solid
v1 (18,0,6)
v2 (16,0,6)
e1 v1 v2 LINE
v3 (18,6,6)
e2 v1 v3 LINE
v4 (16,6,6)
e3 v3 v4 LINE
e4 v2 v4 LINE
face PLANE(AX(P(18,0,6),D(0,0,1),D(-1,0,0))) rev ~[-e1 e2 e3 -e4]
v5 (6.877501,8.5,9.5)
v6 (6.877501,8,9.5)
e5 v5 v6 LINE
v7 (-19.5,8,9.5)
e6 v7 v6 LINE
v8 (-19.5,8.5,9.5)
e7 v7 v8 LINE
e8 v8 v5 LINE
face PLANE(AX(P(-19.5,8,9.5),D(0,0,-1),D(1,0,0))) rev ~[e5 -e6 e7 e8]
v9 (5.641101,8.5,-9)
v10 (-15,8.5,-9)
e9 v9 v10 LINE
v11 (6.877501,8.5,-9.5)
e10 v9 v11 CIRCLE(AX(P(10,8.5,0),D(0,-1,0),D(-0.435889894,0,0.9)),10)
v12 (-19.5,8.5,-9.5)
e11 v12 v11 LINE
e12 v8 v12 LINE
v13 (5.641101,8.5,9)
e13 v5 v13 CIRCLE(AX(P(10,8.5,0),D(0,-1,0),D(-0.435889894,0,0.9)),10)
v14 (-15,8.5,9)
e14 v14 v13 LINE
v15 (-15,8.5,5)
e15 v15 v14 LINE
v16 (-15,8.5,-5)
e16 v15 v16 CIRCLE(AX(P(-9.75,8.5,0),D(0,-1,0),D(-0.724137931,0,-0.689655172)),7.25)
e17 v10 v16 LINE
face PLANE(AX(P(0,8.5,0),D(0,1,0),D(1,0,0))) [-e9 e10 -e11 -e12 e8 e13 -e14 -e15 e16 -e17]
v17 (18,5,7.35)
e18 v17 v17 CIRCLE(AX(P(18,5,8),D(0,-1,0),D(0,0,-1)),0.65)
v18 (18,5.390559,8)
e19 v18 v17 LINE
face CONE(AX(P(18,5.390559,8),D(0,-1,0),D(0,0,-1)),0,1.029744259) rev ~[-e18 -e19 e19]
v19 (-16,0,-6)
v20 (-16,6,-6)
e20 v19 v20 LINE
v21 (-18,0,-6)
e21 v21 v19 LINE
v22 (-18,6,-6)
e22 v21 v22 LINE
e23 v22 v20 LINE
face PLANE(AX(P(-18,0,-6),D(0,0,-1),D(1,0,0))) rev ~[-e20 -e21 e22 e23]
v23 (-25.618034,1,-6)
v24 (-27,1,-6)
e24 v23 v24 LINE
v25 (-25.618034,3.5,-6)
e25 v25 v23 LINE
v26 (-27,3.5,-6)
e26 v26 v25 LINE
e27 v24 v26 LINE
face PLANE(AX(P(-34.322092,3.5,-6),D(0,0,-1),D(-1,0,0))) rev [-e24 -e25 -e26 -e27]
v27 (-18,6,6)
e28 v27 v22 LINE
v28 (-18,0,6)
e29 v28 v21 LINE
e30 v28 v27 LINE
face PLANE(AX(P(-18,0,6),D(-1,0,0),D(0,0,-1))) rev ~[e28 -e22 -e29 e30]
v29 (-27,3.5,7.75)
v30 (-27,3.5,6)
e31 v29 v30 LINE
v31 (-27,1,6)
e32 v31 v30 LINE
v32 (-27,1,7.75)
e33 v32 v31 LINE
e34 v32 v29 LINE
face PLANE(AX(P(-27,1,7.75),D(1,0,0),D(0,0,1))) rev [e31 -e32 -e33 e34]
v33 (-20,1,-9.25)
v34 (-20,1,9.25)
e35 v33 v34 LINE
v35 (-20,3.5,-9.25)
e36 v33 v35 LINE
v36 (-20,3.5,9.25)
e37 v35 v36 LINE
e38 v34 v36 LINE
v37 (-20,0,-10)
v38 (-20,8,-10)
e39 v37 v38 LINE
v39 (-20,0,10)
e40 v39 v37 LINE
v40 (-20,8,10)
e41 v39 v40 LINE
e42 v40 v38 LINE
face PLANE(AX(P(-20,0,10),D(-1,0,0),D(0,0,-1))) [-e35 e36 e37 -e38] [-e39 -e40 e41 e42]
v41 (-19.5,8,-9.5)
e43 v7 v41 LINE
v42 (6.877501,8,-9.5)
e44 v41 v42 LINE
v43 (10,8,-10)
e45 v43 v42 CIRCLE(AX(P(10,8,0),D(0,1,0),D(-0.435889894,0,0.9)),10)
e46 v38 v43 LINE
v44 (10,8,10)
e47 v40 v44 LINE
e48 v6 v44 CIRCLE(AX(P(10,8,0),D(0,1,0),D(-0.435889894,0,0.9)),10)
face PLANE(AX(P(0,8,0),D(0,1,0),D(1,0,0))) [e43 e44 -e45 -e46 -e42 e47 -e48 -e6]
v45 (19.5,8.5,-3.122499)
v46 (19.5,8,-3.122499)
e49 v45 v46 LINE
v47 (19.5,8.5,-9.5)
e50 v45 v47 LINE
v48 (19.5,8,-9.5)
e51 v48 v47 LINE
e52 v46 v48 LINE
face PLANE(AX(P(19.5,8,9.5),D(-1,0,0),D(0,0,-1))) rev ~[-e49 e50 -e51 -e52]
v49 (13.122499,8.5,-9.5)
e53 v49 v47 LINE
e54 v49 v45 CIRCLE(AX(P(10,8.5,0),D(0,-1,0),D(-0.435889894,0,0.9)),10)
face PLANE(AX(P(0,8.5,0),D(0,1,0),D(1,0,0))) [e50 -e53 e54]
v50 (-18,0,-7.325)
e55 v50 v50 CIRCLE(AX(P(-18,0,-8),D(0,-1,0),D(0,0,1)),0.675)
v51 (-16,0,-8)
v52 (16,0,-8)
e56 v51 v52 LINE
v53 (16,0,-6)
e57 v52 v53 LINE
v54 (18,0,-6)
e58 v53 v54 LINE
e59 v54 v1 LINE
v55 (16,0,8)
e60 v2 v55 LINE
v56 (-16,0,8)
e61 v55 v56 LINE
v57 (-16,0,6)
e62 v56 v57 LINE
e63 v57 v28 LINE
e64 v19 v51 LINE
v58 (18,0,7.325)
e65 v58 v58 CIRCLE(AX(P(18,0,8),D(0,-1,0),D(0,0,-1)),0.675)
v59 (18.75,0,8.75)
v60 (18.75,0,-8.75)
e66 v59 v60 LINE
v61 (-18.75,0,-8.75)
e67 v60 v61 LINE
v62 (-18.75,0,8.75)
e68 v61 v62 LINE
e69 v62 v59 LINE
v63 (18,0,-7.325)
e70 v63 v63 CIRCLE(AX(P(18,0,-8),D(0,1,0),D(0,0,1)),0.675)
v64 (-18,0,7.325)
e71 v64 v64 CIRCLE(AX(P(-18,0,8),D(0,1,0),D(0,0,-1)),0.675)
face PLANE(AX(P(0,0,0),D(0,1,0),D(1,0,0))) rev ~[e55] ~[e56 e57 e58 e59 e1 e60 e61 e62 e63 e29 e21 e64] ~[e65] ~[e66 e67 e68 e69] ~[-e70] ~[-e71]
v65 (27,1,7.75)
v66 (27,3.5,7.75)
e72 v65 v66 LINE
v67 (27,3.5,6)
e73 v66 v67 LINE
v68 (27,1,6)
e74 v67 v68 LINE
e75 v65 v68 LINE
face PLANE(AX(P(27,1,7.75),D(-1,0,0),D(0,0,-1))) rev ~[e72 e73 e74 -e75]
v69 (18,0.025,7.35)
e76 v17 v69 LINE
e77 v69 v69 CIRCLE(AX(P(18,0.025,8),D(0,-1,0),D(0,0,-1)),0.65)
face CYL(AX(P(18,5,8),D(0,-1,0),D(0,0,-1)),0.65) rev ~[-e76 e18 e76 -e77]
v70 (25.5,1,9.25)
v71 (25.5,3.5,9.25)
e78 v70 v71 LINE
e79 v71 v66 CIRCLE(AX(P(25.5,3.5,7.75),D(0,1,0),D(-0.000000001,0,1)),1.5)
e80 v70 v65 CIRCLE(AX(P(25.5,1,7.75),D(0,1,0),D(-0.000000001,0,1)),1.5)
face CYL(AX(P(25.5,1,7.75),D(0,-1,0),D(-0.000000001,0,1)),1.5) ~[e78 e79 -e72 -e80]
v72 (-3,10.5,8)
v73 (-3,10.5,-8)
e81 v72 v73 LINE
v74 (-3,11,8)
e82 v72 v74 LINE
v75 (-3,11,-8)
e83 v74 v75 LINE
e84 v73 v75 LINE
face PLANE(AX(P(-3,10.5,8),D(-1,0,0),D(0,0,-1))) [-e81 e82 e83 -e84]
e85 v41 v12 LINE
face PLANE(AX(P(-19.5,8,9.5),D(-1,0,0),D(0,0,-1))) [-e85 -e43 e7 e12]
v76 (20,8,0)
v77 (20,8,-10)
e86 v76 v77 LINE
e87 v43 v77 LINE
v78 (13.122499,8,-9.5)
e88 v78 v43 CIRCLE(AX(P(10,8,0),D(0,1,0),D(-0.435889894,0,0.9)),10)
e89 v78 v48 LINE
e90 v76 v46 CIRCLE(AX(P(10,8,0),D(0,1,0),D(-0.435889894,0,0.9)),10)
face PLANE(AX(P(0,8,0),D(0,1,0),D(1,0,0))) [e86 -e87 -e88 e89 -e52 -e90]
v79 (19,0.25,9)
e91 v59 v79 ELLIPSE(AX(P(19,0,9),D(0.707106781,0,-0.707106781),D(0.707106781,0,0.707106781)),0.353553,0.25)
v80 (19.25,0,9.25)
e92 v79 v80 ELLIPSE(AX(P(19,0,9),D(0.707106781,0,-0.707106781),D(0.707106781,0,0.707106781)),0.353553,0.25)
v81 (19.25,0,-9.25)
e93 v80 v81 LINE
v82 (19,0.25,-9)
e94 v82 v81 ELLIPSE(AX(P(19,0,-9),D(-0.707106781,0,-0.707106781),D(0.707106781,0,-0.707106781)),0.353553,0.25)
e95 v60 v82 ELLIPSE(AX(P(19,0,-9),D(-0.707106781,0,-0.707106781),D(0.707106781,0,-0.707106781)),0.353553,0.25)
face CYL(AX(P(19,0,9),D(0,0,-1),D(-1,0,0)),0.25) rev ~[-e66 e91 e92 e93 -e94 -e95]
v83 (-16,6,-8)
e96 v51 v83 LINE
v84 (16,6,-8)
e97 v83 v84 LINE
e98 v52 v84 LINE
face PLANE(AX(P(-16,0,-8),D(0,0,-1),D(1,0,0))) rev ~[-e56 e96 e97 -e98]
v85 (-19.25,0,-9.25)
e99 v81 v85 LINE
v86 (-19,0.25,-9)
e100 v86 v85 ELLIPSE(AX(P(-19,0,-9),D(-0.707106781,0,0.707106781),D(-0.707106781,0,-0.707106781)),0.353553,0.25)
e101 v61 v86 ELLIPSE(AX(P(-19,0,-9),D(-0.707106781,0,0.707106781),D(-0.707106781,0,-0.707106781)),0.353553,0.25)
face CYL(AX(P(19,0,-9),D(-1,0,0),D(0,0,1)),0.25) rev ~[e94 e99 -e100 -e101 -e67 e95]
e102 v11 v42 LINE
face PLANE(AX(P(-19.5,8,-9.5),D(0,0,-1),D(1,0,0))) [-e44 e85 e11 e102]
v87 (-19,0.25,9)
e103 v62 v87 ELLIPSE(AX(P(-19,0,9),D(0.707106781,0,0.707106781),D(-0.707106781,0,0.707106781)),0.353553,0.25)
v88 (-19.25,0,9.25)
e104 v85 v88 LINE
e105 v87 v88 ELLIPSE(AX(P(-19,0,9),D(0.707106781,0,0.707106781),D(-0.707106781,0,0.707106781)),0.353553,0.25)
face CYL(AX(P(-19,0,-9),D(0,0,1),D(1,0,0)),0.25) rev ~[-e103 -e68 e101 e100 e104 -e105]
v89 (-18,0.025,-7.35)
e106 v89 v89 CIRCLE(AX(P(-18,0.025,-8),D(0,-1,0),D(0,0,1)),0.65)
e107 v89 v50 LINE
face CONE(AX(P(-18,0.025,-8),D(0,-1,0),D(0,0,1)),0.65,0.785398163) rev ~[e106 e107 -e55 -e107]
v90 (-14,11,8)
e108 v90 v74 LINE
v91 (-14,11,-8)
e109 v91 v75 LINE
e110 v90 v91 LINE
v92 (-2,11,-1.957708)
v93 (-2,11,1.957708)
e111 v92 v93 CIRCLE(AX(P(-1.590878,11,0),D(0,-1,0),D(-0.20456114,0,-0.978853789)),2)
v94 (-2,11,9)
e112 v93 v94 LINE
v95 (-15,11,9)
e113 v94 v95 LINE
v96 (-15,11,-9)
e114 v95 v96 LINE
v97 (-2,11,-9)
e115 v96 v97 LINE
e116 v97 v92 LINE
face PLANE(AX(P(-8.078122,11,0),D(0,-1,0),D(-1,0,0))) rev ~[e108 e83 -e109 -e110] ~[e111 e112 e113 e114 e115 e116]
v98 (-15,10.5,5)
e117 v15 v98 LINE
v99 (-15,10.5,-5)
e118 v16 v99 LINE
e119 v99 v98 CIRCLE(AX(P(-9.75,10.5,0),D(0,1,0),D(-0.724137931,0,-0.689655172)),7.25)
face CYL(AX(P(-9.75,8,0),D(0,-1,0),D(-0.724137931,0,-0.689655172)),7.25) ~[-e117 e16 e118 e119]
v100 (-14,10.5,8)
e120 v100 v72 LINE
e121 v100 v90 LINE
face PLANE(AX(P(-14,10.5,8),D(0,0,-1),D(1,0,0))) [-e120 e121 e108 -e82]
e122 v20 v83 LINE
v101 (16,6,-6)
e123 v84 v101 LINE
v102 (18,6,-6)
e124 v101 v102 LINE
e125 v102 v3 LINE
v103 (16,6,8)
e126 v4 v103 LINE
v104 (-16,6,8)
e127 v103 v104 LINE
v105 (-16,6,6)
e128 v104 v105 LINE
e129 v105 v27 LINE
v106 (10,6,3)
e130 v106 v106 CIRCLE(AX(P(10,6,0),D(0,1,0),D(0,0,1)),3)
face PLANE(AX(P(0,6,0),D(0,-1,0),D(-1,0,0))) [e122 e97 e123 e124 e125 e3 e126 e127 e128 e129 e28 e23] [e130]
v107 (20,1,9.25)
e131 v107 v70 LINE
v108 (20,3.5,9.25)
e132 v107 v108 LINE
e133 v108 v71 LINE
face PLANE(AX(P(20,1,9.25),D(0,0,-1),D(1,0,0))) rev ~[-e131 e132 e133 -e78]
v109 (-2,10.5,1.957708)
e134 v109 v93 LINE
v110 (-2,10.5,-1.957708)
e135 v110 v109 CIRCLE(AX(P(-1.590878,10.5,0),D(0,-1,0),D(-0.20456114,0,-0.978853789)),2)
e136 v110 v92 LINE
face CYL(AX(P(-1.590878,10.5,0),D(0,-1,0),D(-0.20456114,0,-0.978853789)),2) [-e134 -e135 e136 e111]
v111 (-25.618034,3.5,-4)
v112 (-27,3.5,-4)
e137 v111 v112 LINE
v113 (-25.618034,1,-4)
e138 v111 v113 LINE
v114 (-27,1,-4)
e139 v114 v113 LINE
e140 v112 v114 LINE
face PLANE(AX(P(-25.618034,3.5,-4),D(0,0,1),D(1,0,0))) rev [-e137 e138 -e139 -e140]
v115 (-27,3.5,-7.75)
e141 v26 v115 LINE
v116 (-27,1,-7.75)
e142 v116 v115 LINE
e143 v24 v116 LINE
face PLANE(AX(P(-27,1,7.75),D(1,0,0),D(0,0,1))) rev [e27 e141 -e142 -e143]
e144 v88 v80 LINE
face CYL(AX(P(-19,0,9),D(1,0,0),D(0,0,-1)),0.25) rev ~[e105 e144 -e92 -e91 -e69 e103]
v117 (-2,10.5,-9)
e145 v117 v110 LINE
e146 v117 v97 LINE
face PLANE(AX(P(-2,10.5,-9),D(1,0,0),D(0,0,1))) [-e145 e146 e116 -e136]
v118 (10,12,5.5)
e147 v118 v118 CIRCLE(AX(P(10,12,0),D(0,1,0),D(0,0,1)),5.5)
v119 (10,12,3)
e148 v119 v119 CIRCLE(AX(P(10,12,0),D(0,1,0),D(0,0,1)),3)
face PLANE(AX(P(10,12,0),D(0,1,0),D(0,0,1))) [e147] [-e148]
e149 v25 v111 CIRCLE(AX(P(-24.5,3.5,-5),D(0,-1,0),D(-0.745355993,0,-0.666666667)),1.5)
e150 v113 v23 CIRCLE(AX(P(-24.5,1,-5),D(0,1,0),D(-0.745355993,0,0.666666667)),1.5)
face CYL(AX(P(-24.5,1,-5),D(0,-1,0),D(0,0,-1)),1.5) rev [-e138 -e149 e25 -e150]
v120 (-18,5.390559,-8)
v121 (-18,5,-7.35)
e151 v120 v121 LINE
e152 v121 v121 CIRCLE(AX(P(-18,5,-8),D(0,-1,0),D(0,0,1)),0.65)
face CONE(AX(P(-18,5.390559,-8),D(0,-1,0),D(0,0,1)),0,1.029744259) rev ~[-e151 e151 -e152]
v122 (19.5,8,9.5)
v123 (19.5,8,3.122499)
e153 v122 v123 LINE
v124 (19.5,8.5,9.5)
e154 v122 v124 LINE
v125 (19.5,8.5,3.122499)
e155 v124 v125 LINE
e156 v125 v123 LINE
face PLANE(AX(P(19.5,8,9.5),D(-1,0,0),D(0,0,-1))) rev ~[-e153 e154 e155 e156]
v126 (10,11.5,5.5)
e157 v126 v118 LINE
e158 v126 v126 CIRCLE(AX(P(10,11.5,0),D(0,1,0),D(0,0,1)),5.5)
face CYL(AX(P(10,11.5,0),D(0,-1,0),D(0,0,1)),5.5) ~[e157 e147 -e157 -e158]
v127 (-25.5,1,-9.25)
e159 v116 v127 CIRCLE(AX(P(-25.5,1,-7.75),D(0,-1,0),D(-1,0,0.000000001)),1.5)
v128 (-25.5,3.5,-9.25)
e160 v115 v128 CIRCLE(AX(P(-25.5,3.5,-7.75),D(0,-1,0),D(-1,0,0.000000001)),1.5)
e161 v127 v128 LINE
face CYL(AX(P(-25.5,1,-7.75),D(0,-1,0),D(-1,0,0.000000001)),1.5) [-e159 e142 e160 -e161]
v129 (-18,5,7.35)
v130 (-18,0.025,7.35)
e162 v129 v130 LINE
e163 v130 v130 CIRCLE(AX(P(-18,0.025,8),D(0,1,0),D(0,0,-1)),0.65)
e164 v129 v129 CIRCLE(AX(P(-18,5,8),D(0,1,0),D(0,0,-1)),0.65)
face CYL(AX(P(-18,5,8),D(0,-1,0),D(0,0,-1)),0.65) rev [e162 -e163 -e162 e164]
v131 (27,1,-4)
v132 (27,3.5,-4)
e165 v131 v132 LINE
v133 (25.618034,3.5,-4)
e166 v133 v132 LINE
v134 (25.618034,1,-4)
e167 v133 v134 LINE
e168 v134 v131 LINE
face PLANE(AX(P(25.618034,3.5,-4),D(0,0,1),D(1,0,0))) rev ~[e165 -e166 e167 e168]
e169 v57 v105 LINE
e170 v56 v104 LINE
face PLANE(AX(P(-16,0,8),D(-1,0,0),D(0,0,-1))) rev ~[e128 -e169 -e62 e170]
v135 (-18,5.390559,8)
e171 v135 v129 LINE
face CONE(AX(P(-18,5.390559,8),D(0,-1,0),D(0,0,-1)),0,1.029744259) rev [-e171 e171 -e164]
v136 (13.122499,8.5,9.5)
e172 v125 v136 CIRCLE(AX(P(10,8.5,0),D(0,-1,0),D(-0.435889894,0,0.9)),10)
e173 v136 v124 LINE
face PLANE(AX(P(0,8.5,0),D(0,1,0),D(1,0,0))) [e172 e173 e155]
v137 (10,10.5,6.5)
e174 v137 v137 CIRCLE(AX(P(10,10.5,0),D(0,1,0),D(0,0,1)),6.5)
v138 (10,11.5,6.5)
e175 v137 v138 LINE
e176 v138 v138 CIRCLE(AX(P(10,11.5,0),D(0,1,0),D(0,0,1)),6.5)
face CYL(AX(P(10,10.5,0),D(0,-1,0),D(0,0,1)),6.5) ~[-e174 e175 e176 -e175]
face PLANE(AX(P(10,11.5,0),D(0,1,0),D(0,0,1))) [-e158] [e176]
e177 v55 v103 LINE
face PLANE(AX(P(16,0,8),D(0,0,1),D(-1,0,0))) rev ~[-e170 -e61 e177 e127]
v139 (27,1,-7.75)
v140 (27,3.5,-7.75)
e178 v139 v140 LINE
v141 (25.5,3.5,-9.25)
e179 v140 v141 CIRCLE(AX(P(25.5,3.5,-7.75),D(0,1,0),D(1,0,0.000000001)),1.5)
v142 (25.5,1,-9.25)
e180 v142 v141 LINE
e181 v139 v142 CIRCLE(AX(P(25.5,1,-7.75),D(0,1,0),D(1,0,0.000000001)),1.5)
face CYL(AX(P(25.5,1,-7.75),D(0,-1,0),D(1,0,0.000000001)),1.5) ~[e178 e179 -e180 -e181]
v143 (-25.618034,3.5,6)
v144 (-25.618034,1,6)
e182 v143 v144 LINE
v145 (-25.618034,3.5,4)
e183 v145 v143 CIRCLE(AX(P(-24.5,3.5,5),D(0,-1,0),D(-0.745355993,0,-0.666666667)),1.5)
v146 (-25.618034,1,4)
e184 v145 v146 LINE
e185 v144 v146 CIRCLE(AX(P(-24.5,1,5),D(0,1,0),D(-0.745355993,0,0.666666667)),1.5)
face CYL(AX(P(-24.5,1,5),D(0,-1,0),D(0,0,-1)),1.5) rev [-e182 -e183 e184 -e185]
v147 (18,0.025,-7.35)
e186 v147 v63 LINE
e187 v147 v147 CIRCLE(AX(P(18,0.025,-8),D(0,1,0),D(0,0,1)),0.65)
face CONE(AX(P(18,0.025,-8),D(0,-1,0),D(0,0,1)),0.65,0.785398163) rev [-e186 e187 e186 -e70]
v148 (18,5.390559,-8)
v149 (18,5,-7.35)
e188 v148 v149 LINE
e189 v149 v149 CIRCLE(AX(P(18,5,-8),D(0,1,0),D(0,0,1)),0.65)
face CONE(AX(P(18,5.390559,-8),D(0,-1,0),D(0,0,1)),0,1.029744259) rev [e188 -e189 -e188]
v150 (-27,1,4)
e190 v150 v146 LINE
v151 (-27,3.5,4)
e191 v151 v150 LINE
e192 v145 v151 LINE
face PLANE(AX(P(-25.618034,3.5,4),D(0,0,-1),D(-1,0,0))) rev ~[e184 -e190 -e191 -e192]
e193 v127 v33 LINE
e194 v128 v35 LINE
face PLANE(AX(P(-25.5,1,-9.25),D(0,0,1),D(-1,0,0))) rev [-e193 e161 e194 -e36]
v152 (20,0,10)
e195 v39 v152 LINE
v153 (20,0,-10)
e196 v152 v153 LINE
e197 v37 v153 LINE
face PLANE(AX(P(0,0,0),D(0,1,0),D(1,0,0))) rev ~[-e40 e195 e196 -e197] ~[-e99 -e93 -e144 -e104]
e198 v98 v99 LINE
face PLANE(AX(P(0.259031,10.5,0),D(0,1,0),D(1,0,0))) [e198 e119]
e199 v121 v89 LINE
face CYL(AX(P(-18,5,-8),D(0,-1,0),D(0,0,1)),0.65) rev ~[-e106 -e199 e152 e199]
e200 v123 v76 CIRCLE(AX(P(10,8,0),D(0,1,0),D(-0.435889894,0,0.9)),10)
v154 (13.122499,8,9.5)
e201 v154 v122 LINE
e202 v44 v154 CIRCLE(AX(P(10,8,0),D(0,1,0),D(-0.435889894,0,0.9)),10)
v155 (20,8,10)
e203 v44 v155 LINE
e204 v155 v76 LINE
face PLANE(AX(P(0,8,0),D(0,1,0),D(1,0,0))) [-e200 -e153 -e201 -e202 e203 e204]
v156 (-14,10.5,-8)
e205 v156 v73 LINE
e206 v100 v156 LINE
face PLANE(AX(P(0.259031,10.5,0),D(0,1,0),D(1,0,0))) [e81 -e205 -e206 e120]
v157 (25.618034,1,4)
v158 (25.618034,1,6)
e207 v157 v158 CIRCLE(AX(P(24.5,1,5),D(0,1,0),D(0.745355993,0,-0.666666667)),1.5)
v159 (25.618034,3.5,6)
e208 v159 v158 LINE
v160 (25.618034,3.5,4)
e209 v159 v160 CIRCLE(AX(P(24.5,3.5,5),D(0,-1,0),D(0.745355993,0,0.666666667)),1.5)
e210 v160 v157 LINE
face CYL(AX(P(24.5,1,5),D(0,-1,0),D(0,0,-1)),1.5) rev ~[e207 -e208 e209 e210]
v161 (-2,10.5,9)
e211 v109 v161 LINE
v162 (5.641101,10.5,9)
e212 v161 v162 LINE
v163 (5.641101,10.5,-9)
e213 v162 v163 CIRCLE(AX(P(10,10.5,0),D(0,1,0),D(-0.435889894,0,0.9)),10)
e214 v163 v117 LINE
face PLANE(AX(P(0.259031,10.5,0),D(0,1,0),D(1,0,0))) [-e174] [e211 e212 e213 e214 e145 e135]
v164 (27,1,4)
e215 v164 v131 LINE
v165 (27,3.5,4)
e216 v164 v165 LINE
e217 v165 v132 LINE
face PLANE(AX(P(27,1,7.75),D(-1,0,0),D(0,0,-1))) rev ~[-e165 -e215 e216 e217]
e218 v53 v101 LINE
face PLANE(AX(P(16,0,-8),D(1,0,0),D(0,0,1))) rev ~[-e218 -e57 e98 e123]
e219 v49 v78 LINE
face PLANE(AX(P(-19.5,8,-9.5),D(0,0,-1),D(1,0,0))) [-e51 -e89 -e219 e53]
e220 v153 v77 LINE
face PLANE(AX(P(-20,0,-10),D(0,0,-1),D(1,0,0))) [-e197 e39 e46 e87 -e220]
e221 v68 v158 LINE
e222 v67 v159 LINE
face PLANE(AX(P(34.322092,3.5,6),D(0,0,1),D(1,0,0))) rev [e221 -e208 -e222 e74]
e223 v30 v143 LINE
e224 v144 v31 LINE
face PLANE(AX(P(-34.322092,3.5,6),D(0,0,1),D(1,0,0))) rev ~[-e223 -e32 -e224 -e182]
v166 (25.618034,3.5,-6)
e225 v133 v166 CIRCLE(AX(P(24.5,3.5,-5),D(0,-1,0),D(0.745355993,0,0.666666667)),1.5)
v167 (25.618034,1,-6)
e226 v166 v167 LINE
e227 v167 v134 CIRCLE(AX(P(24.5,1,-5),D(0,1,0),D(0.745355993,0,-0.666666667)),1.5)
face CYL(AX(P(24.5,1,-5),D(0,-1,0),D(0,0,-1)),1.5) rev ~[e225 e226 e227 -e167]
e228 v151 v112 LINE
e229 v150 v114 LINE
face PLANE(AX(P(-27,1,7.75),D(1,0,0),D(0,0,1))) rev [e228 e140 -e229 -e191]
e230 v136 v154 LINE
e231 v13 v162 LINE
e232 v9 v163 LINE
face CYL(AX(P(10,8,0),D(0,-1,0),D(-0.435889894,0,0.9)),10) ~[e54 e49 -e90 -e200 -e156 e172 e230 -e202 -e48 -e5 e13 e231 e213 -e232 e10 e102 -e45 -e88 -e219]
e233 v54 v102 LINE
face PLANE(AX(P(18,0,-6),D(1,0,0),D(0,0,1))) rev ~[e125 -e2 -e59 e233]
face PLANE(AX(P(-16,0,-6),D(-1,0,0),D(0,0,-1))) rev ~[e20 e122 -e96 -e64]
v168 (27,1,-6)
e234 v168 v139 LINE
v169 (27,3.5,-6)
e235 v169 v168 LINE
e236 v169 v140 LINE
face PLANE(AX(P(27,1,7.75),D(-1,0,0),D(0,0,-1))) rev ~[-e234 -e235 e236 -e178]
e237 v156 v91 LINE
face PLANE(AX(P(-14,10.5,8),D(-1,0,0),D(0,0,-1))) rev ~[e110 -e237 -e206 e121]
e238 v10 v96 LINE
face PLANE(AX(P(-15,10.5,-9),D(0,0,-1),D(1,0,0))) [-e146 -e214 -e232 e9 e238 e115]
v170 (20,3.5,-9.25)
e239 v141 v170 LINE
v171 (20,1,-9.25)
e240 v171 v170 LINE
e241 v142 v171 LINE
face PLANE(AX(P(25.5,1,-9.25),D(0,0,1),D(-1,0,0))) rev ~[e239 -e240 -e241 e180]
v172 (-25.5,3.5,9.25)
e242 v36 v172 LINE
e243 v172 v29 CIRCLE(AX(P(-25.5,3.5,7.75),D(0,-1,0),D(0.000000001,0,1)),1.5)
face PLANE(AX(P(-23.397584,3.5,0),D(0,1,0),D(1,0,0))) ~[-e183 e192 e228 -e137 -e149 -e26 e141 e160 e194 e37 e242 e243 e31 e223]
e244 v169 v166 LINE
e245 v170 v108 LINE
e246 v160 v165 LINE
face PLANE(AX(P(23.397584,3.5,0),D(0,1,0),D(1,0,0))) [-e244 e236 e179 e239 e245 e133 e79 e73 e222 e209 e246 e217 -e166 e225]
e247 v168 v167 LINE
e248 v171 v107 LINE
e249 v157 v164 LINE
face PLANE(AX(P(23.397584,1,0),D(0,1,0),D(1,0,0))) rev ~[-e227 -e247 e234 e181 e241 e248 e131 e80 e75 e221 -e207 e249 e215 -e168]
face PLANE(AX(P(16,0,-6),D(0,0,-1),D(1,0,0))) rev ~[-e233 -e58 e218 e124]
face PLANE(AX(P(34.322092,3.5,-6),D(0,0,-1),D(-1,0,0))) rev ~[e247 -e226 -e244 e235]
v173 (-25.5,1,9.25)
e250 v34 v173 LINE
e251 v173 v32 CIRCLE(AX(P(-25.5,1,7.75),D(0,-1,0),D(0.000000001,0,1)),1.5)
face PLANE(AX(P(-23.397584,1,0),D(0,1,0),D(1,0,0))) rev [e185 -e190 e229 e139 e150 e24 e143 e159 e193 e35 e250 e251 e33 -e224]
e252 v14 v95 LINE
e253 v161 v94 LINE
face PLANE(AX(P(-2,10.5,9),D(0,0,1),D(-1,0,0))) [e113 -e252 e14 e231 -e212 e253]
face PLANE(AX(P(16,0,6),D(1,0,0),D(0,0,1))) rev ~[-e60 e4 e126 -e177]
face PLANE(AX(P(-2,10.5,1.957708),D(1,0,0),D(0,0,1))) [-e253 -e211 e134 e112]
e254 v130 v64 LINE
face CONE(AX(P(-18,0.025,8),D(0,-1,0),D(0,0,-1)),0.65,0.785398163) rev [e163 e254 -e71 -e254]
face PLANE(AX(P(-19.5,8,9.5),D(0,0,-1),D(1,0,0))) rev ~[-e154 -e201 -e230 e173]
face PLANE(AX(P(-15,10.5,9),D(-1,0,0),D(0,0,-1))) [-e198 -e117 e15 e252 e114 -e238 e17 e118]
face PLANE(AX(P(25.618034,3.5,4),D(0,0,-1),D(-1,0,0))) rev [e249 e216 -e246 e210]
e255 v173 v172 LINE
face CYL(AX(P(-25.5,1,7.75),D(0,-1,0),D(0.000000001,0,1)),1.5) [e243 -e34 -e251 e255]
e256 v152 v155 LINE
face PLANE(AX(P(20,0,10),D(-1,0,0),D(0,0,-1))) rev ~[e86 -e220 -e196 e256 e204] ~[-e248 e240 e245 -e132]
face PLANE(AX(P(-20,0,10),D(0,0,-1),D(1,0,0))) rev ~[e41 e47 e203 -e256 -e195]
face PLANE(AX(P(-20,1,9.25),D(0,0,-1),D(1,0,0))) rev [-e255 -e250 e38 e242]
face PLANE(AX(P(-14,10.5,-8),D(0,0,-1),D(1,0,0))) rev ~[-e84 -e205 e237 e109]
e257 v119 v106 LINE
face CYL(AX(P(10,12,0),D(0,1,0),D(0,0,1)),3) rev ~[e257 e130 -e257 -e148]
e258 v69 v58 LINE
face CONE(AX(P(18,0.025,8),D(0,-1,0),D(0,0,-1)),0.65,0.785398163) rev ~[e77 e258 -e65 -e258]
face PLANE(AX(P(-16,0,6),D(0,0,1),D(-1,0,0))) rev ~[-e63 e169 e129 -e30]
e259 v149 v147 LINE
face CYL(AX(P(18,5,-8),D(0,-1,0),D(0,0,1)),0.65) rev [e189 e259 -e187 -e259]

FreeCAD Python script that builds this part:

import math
import FreeCAD as App
import Part
import Sketcher
Q = App.Units.Quantity


def add_polygon(sketch, points):
    """Adds a closed chain of lines whose ends are joined by coincident constraints."""
    first, n = sketch.GeometryCount, len(points)
    for a, b in zip(points, points[1:] + points[:1]):
        sketch.addGeometry(Part.LineSegment(App.Vector(*a, 0), App.Vector(*b, 0)), False)
    for i in range(n):
        sketch.addConstraint(Sketcher.Constraint("Coincident", first + i, 2, first + (i + 1) % n, 1))

doc = App.newDocument("Part")
body = doc.addObject("PartDesign::Body", "Body")

sketch1 = body.newObject("Sketcher::SketchObject", "Sketch")
sketch1.AttachmentSupport = (doc.getObject("XZ_Plane"), [""])
sketch1.MapMode = "FlatFace"
add_polygon(sketch1, [(-20, -10), (-20, 10), (20, 10), (20, -10)])
sketch1.addConstraint([
    Sketcher.Constraint("Vertical", 0),
    Sketcher.Constraint("Horizontal", 1),
    Sketcher.Constraint("Vertical", 2),
    Sketcher.Constraint("Horizontal", 3),
    Sketcher.Constraint("Symmetric", 0, 2, 2, 2, -1, 1),
    Sketcher.Constraint("DistanceX", 1, 1, 1, 2, 40.0),
    Sketcher.Constraint("DistanceY", 0, 1, 0, 2, 20.0),
])
pad1 = body.newObject("PartDesign::Pad", "Pad")
pad1.Profile = sketch1
pad1.Length = 8
pad1.Reversed = True

sketch2 = body.newObject("Sketcher::SketchObject", "Sketch001")
sketch2.AttachmentSupport = (doc.getObject("XZ_Plane"), [""])
sketch2.MapMode = "FlatFace"
add_polygon(sketch2, [(-16, 8), (16, 8), (16, 6), (18, 6), (18, -6), (16, -6), (16, -8), (-16, -8), (-16, -6), (-18, -6), (-18, 6), (-16, 6)])
sketch2.addConstraint([
    Sketcher.Constraint("Horizontal", 0),
    Sketcher.Constraint("Vertical", 1),
    Sketcher.Constraint("Horizontal", 2),
    Sketcher.Constraint("Vertical", 3),
    Sketcher.Constraint("Horizontal", 4),
    Sketcher.Constraint("Vertical", 5),
    Sketcher.Constraint("Horizontal", 6),
    Sketcher.Constraint("Vertical", 7),
    Sketcher.Constraint("Horizontal", 8),
    Sketcher.Constraint("Vertical", 9),
    Sketcher.Constraint("Horizontal", 10),
    Sketcher.Constraint("Vertical", 11),
    Sketcher.Constraint("Symmetric", 0, 2, 6, 2, -1, 1),
    Sketcher.Constraint("Symmetric", 2, 2, 8, 2, -1, 1),
    Sketcher.Constraint("Symmetric", 4, 2, 10, 2, -1, 1),
    Sketcher.Constraint("Symmetric", 4, 2, 7, 2, -2),
    Sketcher.Constraint("Equal", 10, 1),
    Sketcher.Constraint("DistanceX", 0, 1, 0, 2, 32.0),
    Sketcher.Constraint("DistanceX", 2, 1, 2, 2, 2.0),
    Sketcher.Constraint("DistanceY", 3, 2, 3, 1, 12.0),
])
pocket1 = body.newObject("PartDesign::Pocket", "Pocket")
pocket1.Profile = sketch2
pocket1.Length = 6

sketch3 = body.newObject("Sketcher::SketchObject", "Sketch002")
sketch3.AttachmentSupport = (doc.getObject("YZ_Plane"), [""])
sketch3.MapMode = "FlatFace"
sketch3.AttachmentOffset = App.Placement(App.Vector(0, 0, -18), App.Rotation())
add_polygon(sketch3, [(5.391, 8), (0, 8), (0, 7.325), (0.025, 7.35), (5, 7.35)])
sketch3.addGeometry(Part.LineSegment(App.Vector(0, 8, 0), App.Vector(5.391, 8, 0)), True)
sketch3.addConstraint([
    Sketcher.Constraint("Horizontal", 0),
    Sketcher.Constraint("Vertical", 1),
    Sketcher.Constraint("Horizontal", 3),
    Sketcher.Constraint("Horizontal", 5),
    Sketcher.Constraint("Coincident", 5, 1, 0, 2),
    Sketcher.Constraint("PointOnObject", 0, 2, -2),
    Sketcher.Constraint("Equal", 0, 5),
    Sketcher.Constraint("Angle", 2, Q("45 deg")),
    Sketcher.Constraint("Angle", 4, Q("59 deg")),
    Sketcher.Constraint("DistanceY", -1, 1, 0, 2, 8.0),
    Sketcher.Constraint("DistanceX", -1, 1, 3, 2, 5.0),
    Sketcher.Constraint("DistanceX", 3, 1, 3, 2, 4.975),
    Sketcher.Constraint("DistanceY", 1, 2, 1, 1, 0.675),
])
groove = body.newObject("PartDesign::Groove", "Groove")
groove.Profile = sketch3
groove.ReferenceAxis = (sketch3, ["Axis0"])
groove.Angle = 360
doc.recompute()

mirrored = body.newObject("PartDesign::Mirrored", "Mirrored")
mirrored.Originals = [groove]
mirrored.MirrorPlane = (doc.getObject("YZ_Plane"), [""])
body.Tip = mirrored
doc.recompute()

mirrored2 = body.newObject("PartDesign::Mirrored", "Mirrored001")
mirrored2.Originals = [groove]
mirrored2.MirrorPlane = (doc.getObject("XY_Plane"), [""])
body.Tip = mirrored2

sketch4 = body.newObject("Sketcher::SketchObject", "Sketch003")
sketch4.AttachmentSupport = (doc.getObject("YZ_Plane"), [""])
sketch4.MapMode = "FlatFace"
sketch4.AttachmentOffset = App.Placement(App.Vector(0, 0, 18), App.Rotation())
add_polygon(sketch4, [(5.391, -8), (0, -8), (0, -7.325), (0.025, -7.35), (5, -7.35)])
sketch4.addGeometry(Part.LineSegment(App.Vector(0, -8, 0), App.Vector(5.391, -8, 0)), True)
sketch4.addConstraint([
    Sketcher.Constraint("Horizontal", 0),
    Sketcher.Constraint("Vertical", 1),
    Sketcher.Constraint("Horizontal", 3),
    Sketcher.Constraint("Horizontal", 5),
    Sketcher.Constraint("Coincident", 5, 1, 0, 2),
    Sketcher.Constraint("PointOnObject", 0, 2, -2),
    Sketcher.Constraint("Equal", 0, 5),
    Sketcher.Constraint("Angle", 2, Q("-45 deg")),
    Sketcher.Constraint("Angle", 4, Q("-59 deg")),
    Sketcher.Constraint("DistanceY", 0, 2, -1, 1, 8.0),
    Sketcher.Constraint("DistanceX", -1, 1, 3, 2, 5.0),
    Sketcher.Constraint("DistanceX", 3, 1, 3, 2, 4.975),
    Sketcher.Constraint("DistanceY", 1, 1, 1, 2, 0.675),
])
groove2 = body.newObject("PartDesign::Groove", "Groove001")
groove2.Profile = sketch4
groove2.ReferenceAxis = (sketch4, ["Axis0"])
groove2.Angle = 360

sketch5 = body.newObject("Sketcher::SketchObject", "Sketch004")
sketch5.AttachmentSupport = (doc.getObject("XY_Plane"), [""])
sketch5.MapMode = "FlatFace"
sketch5.addGeometry([
    Part.LineSegment(App.Vector(-19.25, 0, 0), App.Vector(-18.75, 0, 0)),
    Part.ArcOfCircle(Part.Circle(App.Vector(-19, 0, 0), App.Vector(0, 0, 1), 0.25), math.radians(0), math.radians(180)),
], False)
sketch5.addConstraint([
    Sketcher.Constraint("Coincident", 0, 1, 1, 2),
    Sketcher.Constraint("Coincident", 1, 1, 0, 2),
    Sketcher.Constraint("Horizontal", 0),
    Sketcher.Constraint("PointOnObject", 1, 3, -1),
    Sketcher.Constraint("PointOnObject", 0, 1, -1),
    Sketcher.Constraint("Radius", 1, 0.25),
    Sketcher.Constraint("DistanceX", 1, 3, -1, 1, 19.0),
])

sketch6 = body.newObject("Sketcher::SketchObject", "Sketch005")
sketch6.AttachmentSupport = (doc.getObject("XZ_Plane"), [""])
sketch6.MapMode = "FlatFace"
add_polygon(sketch6, [(19, -9), (-19, -9), (-19, 9), (19, 9)])
sketch6.addConstraint([
    Sketcher.Constraint("Horizontal", 0),
    Sketcher.Constraint("Vertical", 1),
    Sketcher.Constraint("Horizontal", 2),
    Sketcher.Constraint("Vertical", 3),
    Sketcher.Constraint("Symmetric", 0, 2, 2, 2, -1, 1),
    Sketcher.Constraint("DistanceX", 0, 2, 0, 1, 38.0),
    Sketcher.Constraint("DistanceY", 1, 1, 1, 2, 18.0),
])
doc.recompute()

subtractivepipe = body.newObject("PartDesign::SubtractivePipe", "SubtractivePipe")
subtractivepipe.Profile = sketch5
subtractivepipe.Spine = (sketch6, ["Edge1", "Edge2", "Edge3", "Edge4"])
subtractivepipe.Transition = "Right corner"

sketch7 = body.newObject("Sketcher::SketchObject", "Sketch006")
sketch7.AttachmentSupport = (doc.getObject("XZ_Plane"), [""])
sketch7.MapMode = "FlatFace"
sketch7.AttachmentOffset = App.Placement(App.Vector(0, 0, -8), App.Rotation())
sketch7.addGeometry([
    Part.LineSegment(App.Vector(5.6, -9, 0), App.Vector(-15, -9, 0)),
    Part.LineSegment(App.Vector(-15, -9, 0), App.Vector(-15, -5, 0)),
    Part.ArcOfCircle(Part.Circle(App.Vector(-9.8, 0, 0), App.Vector(0, 0, 1), 7.2), math.radians(136), math.radians(224)),
    Part.LineSegment(App.Vector(-15, 5, 0), App.Vector(-15, 9, 0)),
    Part.LineSegment(App.Vector(-15, 9, 0), App.Vector(5.6, 9, 0)),
    Part.ArcOfCircle(Part.Circle(App.Vector(10, 0, 0), App.Vector(0, 0, 1), 10), math.radians(-116), math.radians(116)),
], False)
sketch7.addConstraint([
    Sketcher.Constraint("Coincident", 0, 2, 1, 1),
    Sketcher.Constraint("Coincident", 1, 2, 2, 2),
    Sketcher.Constraint("Coincident", 2, 1, 3, 1),
    Sketcher.Constraint("Coincident", 3, 2, 4, 1),
    Sketcher.Constraint("Coincident", 4, 2, 5, 2),
    Sketcher.Constraint("Coincident", 5, 1, 0, 1),
    Sketcher.Constraint("Horizontal", 0),
    Sketcher.Constraint("Vertical", 1),
    Sketcher.Constraint("Vertical", 3),
    Sketcher.Constraint("Horizontal", 4),
    Sketcher.Constraint("Symmetric", 1, 2, 2, 1, -1),
    Sketcher.Constraint("Symmetric", 4, 2, 5, 1, -1),
    Sketcher.Constraint("Radius", 5, 10.0),
    Sketcher.Constraint("DistanceY", 1, 1, 1, 2, 4.0),
    Sketcher.Constraint("Radius", 2, 7.25),
    Sketcher.Constraint("DistanceX", -1, 1, 5, 3, 10.0),
    Sketcher.Constraint("DistanceX", 0, 2, -1, 1, 15.0),
    Sketcher.Constraint("DistanceY", 0, 2, -1, 1, 9.0),
])
pad2 = body.newObject("PartDesign::Pad", "Pad001")
pad2.Profile = sketch7
pad2.Length = 2.5
pad2.Reversed = True

sketch8 = body.newObject("Sketcher::SketchObject", "Sketch007")
sketch8.AttachmentSupport = (doc.getObject("XZ_Plane"), [""])
sketch8.MapMode = "FlatFace"
sketch8.AttachmentOffset = App.Placement(App.Vector(0, 0, -8), App.Rotation())
add_polygon(sketch8, [(-20, -10), (-20, 10), (20, 10), (20, -10)])
sketch8.addConstraint([
    Sketcher.Constraint("Vertical", 0),
    Sketcher.Constraint("Horizontal", 1),
    Sketcher.Constraint("Vertical", 2),
    Sketcher.Constraint("Horizontal", 3),
    Sketcher.Constraint("Symmetric", 0, 2, 2, 2, -1, 1),
    Sketcher.Constraint("DistanceX", 1, 1, 1, 2, 39.0),
    Sketcher.Constraint("DistanceY", 0, 1, 0, 2, 19.0),
])
pad3 = body.newObject("PartDesign::Pad", "Pad002")
pad3.Profile = sketch8
pad3.Length = 0.5
pad3.Reversed = True

sketch9 = body.newObject("Sketcher::SketchObject", "Sketch008")
sketch9.AttachmentSupport = (doc.getObject("XZ_Plane"), [""])
sketch9.MapMode = "FlatFace"
sketch9.AttachmentOffset = App.Placement(App.Vector(0, 0, -10.5), App.Rotation())
sketch9.addGeometry(Part.LineSegment(App.Vector(-2, -9, 0), App.Vector(-15, -9, 0)), False)
sketch9.addGeometry(Part.LineSegment(App.Vector(-15, -9, 0), App.Vector(-15, 9, 0)), False)
sketch9.addGeometry(Part.LineSegment(App.Vector(-15, 9, 0), App.Vector(-2, 9, 0)), False)
sketch9.addGeometry(Part.LineSegment(App.Vector(-2, 9, 0), App.Vector(-2, 2, 0)), False)
sketch9.addGeometry(Part.ArcOfCircle(Part.Circle(App.Vector(-1.6, 0, 0), App.Vector(0, 0, 1), 2), math.radians(-102), math.radians(102)), False)
sketch9.addGeometry(Part.LineSegment(App.Vector(-2, -2, 0), App.Vector(-2, -9, 0)), False)
add_polygon(sketch9, [(-14, 8), (-14, -8), (-3, -8), (-3, 8)])
sketch9.addConstraint([
    Sketcher.Constraint("Coincident", 0, 2, 1, 1),
    Sketcher.Constraint("Coincident", 1, 2, 2, 1),
    Sketcher.Constraint("Coincident", 2, 2, 3, 1),
    Sketcher.Constraint("Coincident", 3, 2, 4, 2),
    Sketcher.Constraint("Coincident", 4, 1, 5, 1),
    Sketcher.Constraint("Coincident", 5, 2, 0, 1),
    Sketcher.Constraint("Horizontal", 0),
    Sketcher.Constraint("Vertical", 1),
    Sketcher.Constraint("Horizontal", 2),
    Sketcher.Constraint("Vertical", 3),
    Sketcher.Constraint("Vertical", 5),
    Sketcher.Constraint("Vertical", 6),
    Sketcher.Constraint("Horizontal", 7),
    Sketcher.Constraint("Vertical", 8),
    Sketcher.Constraint("Horizontal", 9),
    Sketcher.Constraint("Symmetric", 3, 2, 4, 1, -1),
    Sketcher.Constraint("Equal", 3, 5),
    Sketcher.Constraint("Radius", 4, 2.0),
    Sketcher.Constraint("DistanceX", 0, 2, 0, 1, 13.0),
    Sketcher.Constraint("DistanceX", 7, 1, 7, 2, 11.0),
    Sketcher.Constraint("DistanceY", 1, 1, 1, 2, 18.0),
    Sketcher.Constraint("DistanceY", 6, 2, 6, 1, 16.0),
    Sketcher.Constraint("DistanceX", 0, 2, -1, 1, 15.0),
    Sketcher.Constraint("DistanceX", 6, 2, -1, 1, 14.0),
    Sketcher.Constraint("DistanceY", 6, 2, -1, 1, 8.0),
    Sketcher.Constraint("DistanceY", 3, 2, 3, 1, 7.042292),
])
pad4 = body.newObject("PartDesign::Pad", "Pad003")
pad4.Profile = sketch9
pad4.Length = 0.5
pad4.Reversed = True

sketch10 = body.newObject("Sketcher::SketchObject", "Sketch009")
sketch10.AttachmentSupport = (doc.getObject("XZ_Plane"), [""])
sketch10.MapMode = "FlatFace"
sketch10.AttachmentOffset = App.Placement(App.Vector(0, 0, -10.5), App.Rotation())
sketch10.addGeometry(Part.Circle(App.Vector(10, 0, 0), App.Vector(0, 0, 1), 6), False)
sketch10.addConstraint([
    Sketcher.Constraint("PointOnObject", 0, 3, -1),
    Sketcher.Constraint("Diameter", 0, 13.0),
    Sketcher.Constraint("DistanceX", -1, 1, 0, 3, 10.0),
])
pad5 = body.newObject("PartDesign::Pad", "Pad004")
pad5.Profile = sketch10
pad5.Length = 1
pad5.Reversed = True

sketch11 = body.newObject("Sketcher::SketchObject", "Sketch010")
sketch11.AttachmentSupport = (doc.getObject("XZ_Plane"), [""])
sketch11.MapMode = "FlatFace"
sketch11.AttachmentOffset = App.Placement(App.Vector(0, 0, -11.5), App.Rotation())
sketch11.addGeometry(Part.Circle(App.Vector(10, 0, 0), App.Vector(0, 0, 1), 6), False)
sketch11.addConstraint([
    Sketcher.Constraint("PointOnObject", 0, 3, -1),
    Sketcher.Constraint("Diameter", 0, 11.0),
    Sketcher.Constraint("DistanceX", -1, 1, 0, 3, 10.0),
])
pad6 = body.newObject("PartDesign::Pad", "Pad005")
pad6.Profile = sketch11
pad6.Length = 0.5
pad6.Reversed = True

sketch12 = body.newObject("Sketcher::SketchObject", "Sketch011")
sketch12.AttachmentSupport = (doc.getObject("XZ_Plane"), [""])
sketch12.MapMode = "FlatFace"
sketch12.AttachmentOffset = App.Placement(App.Vector(0, 0, -12), App.Rotation())
sketch12.addGeometry(Part.Circle(App.Vector(10, 0, 0), App.Vector(0, 0, 1), 3), False)
sketch12.addConstraint([
    Sketcher.Constraint("PointOnObject", 0, 3, -1),
    Sketcher.Constraint("Diameter", 0, 6.0),
    Sketcher.Constraint("DistanceX", -1, 1, 0, 3, 10.0),
])
pocket2 = body.newObject("PartDesign::Pocket", "Pocket001")
pocket2.Profile = sketch12
pocket2.Type = "ThroughAll"
pocket2.Reversed = True

sketch13 = body.newObject("Sketcher::SketchObject", "Sketch012")
sketch13.AttachmentSupport = (doc.getObject("XZ_Plane"), [""])
sketch13.MapMode = "FlatFace"
sketch13.AttachmentOffset = App.Placement(App.Vector(0, 0, -1), App.Rotation())
sketch13.addGeometry([
    Part.LineSegment(App.Vector(20, -9.2, 0), App.Vector(25.5, -9.2, 0)),
    Part.ArcOfCircle(Part.Circle(App.Vector(25.5, -7.8, 0), App.Vector(0, 0, 1), 1.5), math.radians(-90), math.radians(0)),
    Part.LineSegment(App.Vector(27, -7.8, 0), App.Vector(27, 7.8, 0)),
    Part.ArcOfCircle(Part.Circle(App.Vector(25.5, 7.8, 0), App.Vector(0, 0, 1), 1.5), math.radians(0), math.radians(90)),
    Part.LineSegment(App.Vector(25.5, 9.2, 0), App.Vector(20, 9.2, 0)),
    Part.LineSegment(App.Vector(20, 9.2, 0), App.Vector(20, -9.2, 0)),
    Part.Circle(App.Vector(24.5, 5, 0), App.Vector(0, 0, 1), 1.5),
    Part.Circle(App.Vector(24.5, -5, 0), App.Vector(0, 0, 1), 1.5),
], False)
sketch13.addConstraint([
    Sketcher.Constraint("Tangent", 0, 2, 1, 1),
    Sketcher.Constraint("Tangent", 1, 2, 2, 1),
    Sketcher.Constraint("Tangent", 2, 2, 3, 1),
    Sketcher.Constraint("Tangent", 3, 2, 4, 1),
    Sketcher.Constraint("Coincident", 4, 2, 5, 1),
    Sketcher.Constraint("Coincident", 5, 2, 0, 1),
    Sketcher.Constraint("Horizontal", 0),
    Sketcher.Constraint("Vertical", 2),
    Sketcher.Constraint("Horizontal", 4),
    Sketcher.Constraint("Vertical", 5),
    Sketcher.Constraint("Equal", 1, 3),
    Sketcher.Constraint("Equal", 3, 6),
    Sketcher.Constraint("Equal", 6, 7),
    Sketcher.Constraint("Symmetric", 6, 3, 7, 3, -1),
    Sketcher.Constraint("Diameter", 6, 3.0),
    Sketcher.Constraint("DistanceX", 0, 1, 0, 2, 5.5),
    Sketcher.Constraint("DistanceY", 2, 1, 2, 2, 15.5),
    Sketcher.Constraint("DistanceY", -1, 1, 6, 3, 5.0),
    Sketcher.Constraint("DistanceX", -1, 1, 1, 2, 27.0),
    Sketcher.Constraint("DistanceX", 6, 3, 3, 3, 1.0),
    Sketcher.Constraint("DistanceY", 1, 3, -1, 1, 7.75),
])
pad7 = body.newObject("PartDesign::Pad", "Pad006")
pad7.Profile = sketch13
pad7.Length = 2.5
pad7.Reversed = True

sketch14 = body.newObject("Sketcher::SketchObject", "Sketch013")
sketch14.AttachmentSupport = (doc.getObject("XZ_Plane"), [""])
sketch14.MapMode = "FlatFace"
sketch14.AttachmentOffset = App.Placement(App.Vector(0, 0, -3.5), App.Rotation())
sketch14.addGeometry([
    Part.LineSegment(App.Vector(34.32, -4, 0), App.Vector(34.32, -6, 0)),
    Part.LineSegment(App.Vector(34.32, -6, 0), App.Vector(25.62, -6, 0)),
    Part.ArcOfCircle(Part.Circle(App.Vector(24.5, -5, 0), App.Vector(0, 0, 1), 1.5), math.radians(-41.81), math.radians(-38.57)),
    Part.ArcOfCircle(Part.Circle(App.Vector(24.5, -5, 0), App.Vector(0, 0, 1), 1.5), math.radians(-39), math.radians(0)),
    Part.ArcOfCircle(Part.Circle(App.Vector(24.5, -5, 0), App.Vector(0, 0, 1), 1.5), math.radians(0), math.radians(39)),
    Part.ArcOfCircle(Part.Circle(App.Vector(24.5, -5, 0), App.Vector(0, 0, 1), 1.5), math.radians(38.57), math.radians(41.81)),
    Part.LineSegment(App.Vector(25.62, -4, 0), App.Vector(34.32, -4, 0)),
], False)
sketch14.addConstraint([
    Sketcher.Constraint("Coincident", 0, 2, 1, 1),
    Sketcher.Constraint("Coincident", 1, 2, 2, 1),
    Sketcher.Constraint("Tangent", 2, 2, 3, 1),
    Sketcher.Constraint("Tangent", 3, 2, 4, 1),
    Sketcher.Constraint("Tangent", 4, 2, 5, 1),
    Sketcher.Constraint("Coincident", 5, 2, 6, 1),
    Sketcher.Constraint("Coincident", 6, 2, 0, 1),
    Sketcher.Constraint("Vertical", 0),
    Sketcher.Constraint("Horizontal", 1),
    Sketcher.Constraint("Horizontal", 6),
    Sketcher.Constraint("Coincident", 4, 3, 2, 3),
    Sketcher.Constraint("Equal", 4, 5),
    Sketcher.Constraint("Horizontal", 5, 3, 3, 2),
    Sketcher.Constraint("Vertical", 2, 2, 4, 2),
    Sketcher.Constraint("Vertical", 1, 2, 5, 2),
    Sketcher.Constraint("Radius", 2, 1.5),
    Sketcher.Constraint("DistanceY", 0, 2, 0, 1, 2.0),
    Sketcher.Constraint("DistanceY", 2, 3, -1, 1, 5.0),
    Sketcher.Constraint("DistanceX", -1, 1, 3, 2, 26.0),
    Sketcher.Constraint("DistanceX", 1, 2, 1, 1, 8.704058),
    Sketcher.Constraint("DistanceX", -1, 1, 2, 2, 25.672708),
])
pocket3 = body.newObject("PartDesign::Pocket", "Pocket002")
pocket3.Profile = sketch14
pocket3.Type = "ThroughAll"
pocket3.Reversed = True
doc.recompute()

mirrored3 = body.newObject("PartDesign::Mirrored", "Mirrored002")
mirrored3.Originals = [pocket3]
mirrored3.MirrorPlane = (doc.getObject("XY_Plane"), [""])
body.Tip = mirrored3
doc.recompute()

mirrored4 = body.newObject("PartDesign::Mirrored", "Mirrored003")
mirrored4.Originals = [pad7, pocket3]
mirrored4.MirrorPlane = (doc.getObject("YZ_Plane"), [""])
body.Tip = mirrored4

sketch15 = body.newObject("Sketcher::SketchObject", "Sketch014")
sketch15.AttachmentSupport = (doc.getObject("XZ_Plane"), [""])
sketch15.MapMode = "FlatFace"
sketch15.AttachmentOffset = App.Placement(App.Vector(0, 0, -3.5), App.Rotation())
sketch15.addGeometry([
    Part.LineSegment(App.Vector(-34.32, 4, 0), App.Vector(-34.32, 6, 0)),
    Part.LineSegment(App.Vector(-34.32, 6, 0), App.Vector(-25.62, 6, 0)),
    Part.ArcOfCircle(Part.Circle(App.Vector(-24.5, 5, 0), App.Vector(0, 0, 1), 1.5), math.radians(138.19), math.radians(141.43)),
    Part.ArcOfCircle(Part.Circle(App.Vector(-24.5, 5, 0), App.Vector(0, 0, 1), 1.5), math.radians(141), math.radians(180)),
    Part.ArcOfCircle(Part.Circle(App.Vector(-24.5, 5, 0), App.Vector(0, 0, 1), 1.5), math.radians(180), math.radians(219)),
    Part.ArcOfCircle(Part.Circle(App.Vector(-24.5, 5, 0), App.Vector(0, 0, 1), 1.5), math.radians(-141.43), math.radians(-138.19)),
    Part.LineSegment(App.Vector(-25.62, 4, 0), App.Vector(-34.32, 4, 0)),
], False)
sketch15.addConstraint([
    Sketcher.Constraint("Coincident", 0, 2, 1, 1),
    Sketcher.Constraint("Coincident", 1, 2, 2, 1),
    Sketcher.Constraint("Tangent", 2, 2, 3, 1),
    Sketcher.Constraint("Tangent", 3, 2, 4, 1),
    Sketcher.Constraint("Tangent", 4, 2, 5, 1),
    Sketcher.Constraint("Coincident", 5, 2, 6, 1),
    Sketcher.Constraint("Coincident", 6, 2, 0, 1),
    Sketcher.Constraint("Vertical", 0),
    Sketcher.Constraint("Horizontal", 1),
    Sketcher.Constraint("Horizontal", 6),
    Sketcher.Constraint("Coincident", 4, 3, 2, 3),
    Sketcher.Constraint("Equal", 4, 5),
    Sketcher.Constraint("Horizontal", 5, 3, 3, 2),
    Sketcher.Constraint("Vertical", 2, 2, 4, 2),
    Sketcher.Constraint("Vertical", 1, 2, 5, 2),
    Sketcher.Constraint("Radius", 2, 1.5),
    Sketcher.Constraint("DistanceY", 0, 1, 0, 2, 2.0),
    Sketcher.Constraint("DistanceY", -1, 1, 2, 3, 5.0),
    Sketcher.Constraint("DistanceX", 3, 2, -1, 1, 26.0),
    Sketcher.Constraint("DistanceX", 1, 1, 1, 2, 8.704058),
    Sketcher.Constraint("DistanceX", 2, 2, -1, 1, 25.672708),
])
pocket4 = body.newObject("PartDesign::Pocket", "Pocket003")
pocket4.Profile = sketch15
pocket4.Type = "ThroughAll"
pocket4.Reversed = True

doc.recompute()
